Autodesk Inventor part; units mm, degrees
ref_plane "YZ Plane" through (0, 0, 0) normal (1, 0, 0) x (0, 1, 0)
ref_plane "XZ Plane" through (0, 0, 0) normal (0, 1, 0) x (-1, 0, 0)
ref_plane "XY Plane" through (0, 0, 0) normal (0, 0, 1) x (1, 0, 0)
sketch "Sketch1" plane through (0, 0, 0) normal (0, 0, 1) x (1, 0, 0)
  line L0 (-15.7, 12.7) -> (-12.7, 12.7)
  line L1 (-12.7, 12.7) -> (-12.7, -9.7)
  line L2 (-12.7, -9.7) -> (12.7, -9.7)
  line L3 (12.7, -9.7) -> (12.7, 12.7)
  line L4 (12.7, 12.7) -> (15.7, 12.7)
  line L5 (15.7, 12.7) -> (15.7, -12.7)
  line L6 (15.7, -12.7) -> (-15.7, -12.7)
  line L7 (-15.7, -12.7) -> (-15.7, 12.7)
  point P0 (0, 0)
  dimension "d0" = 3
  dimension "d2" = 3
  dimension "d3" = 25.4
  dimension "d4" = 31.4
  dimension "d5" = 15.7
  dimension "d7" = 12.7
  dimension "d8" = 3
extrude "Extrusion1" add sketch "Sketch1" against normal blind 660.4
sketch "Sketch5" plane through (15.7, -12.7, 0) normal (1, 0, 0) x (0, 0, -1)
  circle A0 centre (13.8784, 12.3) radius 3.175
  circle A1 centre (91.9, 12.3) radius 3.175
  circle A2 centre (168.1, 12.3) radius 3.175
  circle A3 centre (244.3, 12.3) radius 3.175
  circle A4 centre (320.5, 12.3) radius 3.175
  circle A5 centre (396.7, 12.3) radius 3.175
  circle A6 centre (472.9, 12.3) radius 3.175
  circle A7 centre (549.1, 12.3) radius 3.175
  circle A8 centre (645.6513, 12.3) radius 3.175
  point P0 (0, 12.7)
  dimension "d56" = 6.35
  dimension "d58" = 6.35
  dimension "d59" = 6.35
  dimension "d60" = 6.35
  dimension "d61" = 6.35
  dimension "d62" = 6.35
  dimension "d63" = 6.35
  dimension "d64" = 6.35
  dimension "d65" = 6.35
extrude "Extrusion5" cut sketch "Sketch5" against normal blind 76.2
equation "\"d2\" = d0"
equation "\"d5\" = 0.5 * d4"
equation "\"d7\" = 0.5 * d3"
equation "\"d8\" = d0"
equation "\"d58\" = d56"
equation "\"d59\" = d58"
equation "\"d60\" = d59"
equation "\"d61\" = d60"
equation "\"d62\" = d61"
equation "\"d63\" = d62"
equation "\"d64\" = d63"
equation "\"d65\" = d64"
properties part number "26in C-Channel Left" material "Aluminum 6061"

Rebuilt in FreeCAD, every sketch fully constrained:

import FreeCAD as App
import Part
import Sketcher
Q = App.Units.Quantity

doc = App.newDocument("Part")
params = doc.addObject("Spreadsheet::Sheet", "Params")
for row, (alias, value) in enumerate([
    ("sketch1_width", "1 in"),
    ("pad1_length", "26 in"),
    ("sketch2_diameter", "0.25 in"),
    ("pocket1_length", "3 in"),
], start=1):
    params.set(f"A{row}", alias)
    params.set(f"B{row}", "=" + value)
    params.setAlias(f"B{row}", alias)

body = doc.addObject("PartDesign::Body", "Body")

# Sketch on XY plane
sketch1 = body.newObject("Sketcher::SketchObject", "Sketch")
sketch1.AttachmentSupport = (doc.getObject("XY_Plane"), [""])
sketch1.MapMode = "FlatFace"
sketch1.addGeometry(Part.LineSegment(App.Vector(-12.7, 12.7, 0), App.Vector(-15.7, 12.7, 0)), False)
sketch1.addGeometry(Part.LineSegment(App.Vector(-15.7, 12.7, 0), App.Vector(-15.7, -12.7, 0)), False)
sketch1.addGeometry(Part.LineSegment(App.Vector(-15.7, -12.7, 0), App.Vector(15.7, -12.7, 0)), False)
sketch1.addGeometry(Part.LineSegment(App.Vector(15.7, -12.7, 0), App.Vector(15.7, 12.7, 0)), False)
sketch1.addGeometry(Part.LineSegment(App.Vector(15.7, 12.7, 0), App.Vector(12.7, 12.7, 0)), False)
sketch1.addGeometry(Part.LineSegment(App.Vector(12.7, 12.7, 0), App.Vector(12.7, -9.7, 0)), False)
sketch1.addGeometry(Part.LineSegment(App.Vector(12.7, -9.7, 0), App.Vector(-12.7, -9.7, 0)), False)
sketch1.addGeometry(Part.LineSegment(App.Vector(-12.7, -9.7, 0), App.Vector(-12.7, 12.7, 0)), False)
sketch1.addConstraint(Sketcher.Constraint("Coincident", 0, 2, 1, 1))
sketch1.addConstraint(Sketcher.Constraint("Coincident", 1, 2, 2, 1))
sketch1.addConstraint(Sketcher.Constraint("Coincident", 2, 2, 3, 1))
sketch1.addConstraint(Sketcher.Constraint("Coincident", 3, 2, 4, 1))
sketch1.addConstraint(Sketcher.Constraint("Coincident", 4, 2, 5, 1))
sketch1.addConstraint(Sketcher.Constraint("Coincident", 5, 2, 6, 1))
sketch1.addConstraint(Sketcher.Constraint("Coincident", 6, 2, 7, 1))
sketch1.addConstraint(Sketcher.Constraint("Coincident", 7, 2, 0, 1))
sketch1.addConstraint(Sketcher.Constraint("Horizontal", 0))
sketch1.addConstraint(Sketcher.Constraint("Vertical", 1))
sketch1.addConstraint(Sketcher.Constraint("Horizontal", 2))
sketch1.addConstraint(Sketcher.Constraint("Vertical", 3))
sketch1.addConstraint(Sketcher.Constraint("Horizontal", 4))
sketch1.addConstraint(Sketcher.Constraint("Vertical", 5))
sketch1.addConstraint(Sketcher.Constraint("Horizontal", 6))
sketch1.addConstraint(Sketcher.Constraint("Vertical", 7))
sketch1.addConstraint(Sketcher.Constraint("Symmetric", 0, 2, 2, 2, -1, 1))
sketch1.addConstraint(Sketcher.Constraint("Symmetric", 4, 2, 7, 2, -2))
sketch1.addConstraint(Sketcher.Constraint("Equal", 6, 1))
sketch1.addConstraint(Sketcher.Constraint("DistanceX", 6, 2, 6, 1, Q("1 in")))
sketch1.addConstraint(Sketcher.Constraint("DistanceX", 0, 2, 0, 1, Q("0.1181 in")))
sketch1.addConstraint(Sketcher.Constraint("DistanceY", 2, 2, 5, 2, Q("0.1181 in")))
sketch1.setExpression("Constraints[19]", "Params.sketch1_width")
pad1 = body.newObject("PartDesign::Pad", "Pad")
pad1.Profile = sketch1
pad1.setExpression("Length", "Params.pad1_length")
pad1.Reversed = True

# Sketch on YZ plane
sketch2 = body.newObject("Sketcher::SketchObject", "Sketch001")
sketch2.AttachmentSupport = (doc.getObject("YZ_Plane"), [""])
sketch2.MapMode = "FlatFace"
sketch2.AttachmentOffset = App.Placement(App.Vector(0, 0, 0.6181102 * 25.4), App.Rotation())
sketch2.addGeometry(Part.Circle(App.Vector(-0.4, -13.9, 0), App.Vector(0, 0, 1), 3.2), False)
sketch2.addGeometry(Part.Circle(App.Vector(-0.4, -91.9, 0), App.Vector(0, 0, 1), 3.2), False)
sketch2.addGeometry(Part.Circle(App.Vector(-0.4, -168.1, 0), App.Vector(0, 0, 1), 3.2), False)
sketch2.addGeometry(Part.Circle(App.Vector(-0.4, -244.3, 0), App.Vector(0, 0, 1), 3.2), False)
sketch2.addGeometry(Part.Circle(App.Vector(-0.4, -320.5, 0), App.Vector(0, 0, 1), 3.2), False)
sketch2.addGeometry(Part.Circle(App.Vector(-0.4, -396.7, 0), App.Vector(0, 0, 1), 3.2), False)
sketch2.addGeometry(Part.Circle(App.Vector(-0.4, -472.9, 0), App.Vector(0, 0, 1), 3.2), False)
sketch2.addGeometry(Part.Circle(App.Vector(-0.4, -549.1, 0), App.Vector(0, 0, 1), 3.2), False)
sketch2.addGeometry(Part.Circle(App.Vector(-0.4, -645.7, 0), App.Vector(0, 0, 1), 3.2), False)
sketch2.addConstraint(Sketcher.Constraint("Equal", 0, 1))
sketch2.addConstraint(Sketcher.Constraint("Equal", 1, 2))
sketch2.addConstraint(Sketcher.Constraint("Equal", 2, 3))
sketch2.addConstraint(Sketcher.Constraint("Equal", 3, 4))
sketch2.addConstraint(Sketcher.Constraint("Equal", 4, 5))
sketch2.addConstraint(Sketcher.Constraint("Equal", 5, 6))
sketch2.addConstraint(Sketcher.Constraint("Equal", 6, 7))
sketch2.addConstraint(Sketcher.Constraint("Equal", 7, 8))
sketch2.addConstraint(Sketcher.Constraint("Vertical", 0, 3, 1, 3))
sketch2.addConstraint(Sketcher.Constraint("Vertical", 1, 3, 2, 3))
sketch2.addConstraint(Sketcher.Constraint("Vertical", 2, 3, 3, 3))
sketch2.addConstraint(Sketcher.Constraint("Vertical", 3, 3, 4, 3))
sketch2.addConstraint(Sketcher.Constraint("Vertical", 4, 3, 5, 3))
sketch2.addConstraint(Sketcher.Constraint("Vertical", 5, 3, 6, 3))
sketch2.addConstraint(Sketcher.Constraint("Vertical", 6, 3, 7, 3))
sketch2.addConstraint(Sketcher.Constraint("Vertical", 7, 3, 8, 3))
sketch2.addConstraint(Sketcher.Constraint("Diameter", 0, Q("0.25 in")))
sketch2.addConstraint(Sketcher.Constraint("DistanceY", 2, 3, 1, 3, Q("3 in")))
sketch2.addConstraint(Sketcher.Constraint("DistanceY", 3, 3, 2, 3, Q("3 in")))
sketch2.addConstraint(Sketcher.Constraint("DistanceY", 4, 3, 3, 3, Q("3 in")))
sketch2.addConstraint(Sketcher.Constraint("DistanceY", 5, 3, 4, 3, Q("3 in")))
sketch2.addConstraint(Sketcher.Constraint("DistanceY", 6, 3, 5, 3, Q("3 in")))
sketch2.addConstraint(Sketcher.Constraint("DistanceY", 7, 3, 6, 3, Q("3 in")))
sketch2.addConstraint(Sketcher.Constraint("DistanceY", 0, 3, -1, 1, Q("0.5464 in")))
sketch2.addConstraint(Sketcher.Constraint("DistanceY", 1, 3, -1, 1, Q("3.6181 in")))
sketch2.addConstraint(Sketcher.Constraint("DistanceX", 0, 3, -1, 1, Q("0.4 mm")))
sketch2.addConstraint(Sketcher.Constraint("DistanceY", 8, 3, -1, 1, Q("645.6513 mm")))
sketch2.setExpression("Constraints[16]", "Params.sketch2_diameter")
pocket1 = body.newObject("PartDesign::Pocket", "Pocket")
pocket1.Profile = sketch2
pocket1.setExpression("Length", "Params.pocket1_length")

doc.recompute()
